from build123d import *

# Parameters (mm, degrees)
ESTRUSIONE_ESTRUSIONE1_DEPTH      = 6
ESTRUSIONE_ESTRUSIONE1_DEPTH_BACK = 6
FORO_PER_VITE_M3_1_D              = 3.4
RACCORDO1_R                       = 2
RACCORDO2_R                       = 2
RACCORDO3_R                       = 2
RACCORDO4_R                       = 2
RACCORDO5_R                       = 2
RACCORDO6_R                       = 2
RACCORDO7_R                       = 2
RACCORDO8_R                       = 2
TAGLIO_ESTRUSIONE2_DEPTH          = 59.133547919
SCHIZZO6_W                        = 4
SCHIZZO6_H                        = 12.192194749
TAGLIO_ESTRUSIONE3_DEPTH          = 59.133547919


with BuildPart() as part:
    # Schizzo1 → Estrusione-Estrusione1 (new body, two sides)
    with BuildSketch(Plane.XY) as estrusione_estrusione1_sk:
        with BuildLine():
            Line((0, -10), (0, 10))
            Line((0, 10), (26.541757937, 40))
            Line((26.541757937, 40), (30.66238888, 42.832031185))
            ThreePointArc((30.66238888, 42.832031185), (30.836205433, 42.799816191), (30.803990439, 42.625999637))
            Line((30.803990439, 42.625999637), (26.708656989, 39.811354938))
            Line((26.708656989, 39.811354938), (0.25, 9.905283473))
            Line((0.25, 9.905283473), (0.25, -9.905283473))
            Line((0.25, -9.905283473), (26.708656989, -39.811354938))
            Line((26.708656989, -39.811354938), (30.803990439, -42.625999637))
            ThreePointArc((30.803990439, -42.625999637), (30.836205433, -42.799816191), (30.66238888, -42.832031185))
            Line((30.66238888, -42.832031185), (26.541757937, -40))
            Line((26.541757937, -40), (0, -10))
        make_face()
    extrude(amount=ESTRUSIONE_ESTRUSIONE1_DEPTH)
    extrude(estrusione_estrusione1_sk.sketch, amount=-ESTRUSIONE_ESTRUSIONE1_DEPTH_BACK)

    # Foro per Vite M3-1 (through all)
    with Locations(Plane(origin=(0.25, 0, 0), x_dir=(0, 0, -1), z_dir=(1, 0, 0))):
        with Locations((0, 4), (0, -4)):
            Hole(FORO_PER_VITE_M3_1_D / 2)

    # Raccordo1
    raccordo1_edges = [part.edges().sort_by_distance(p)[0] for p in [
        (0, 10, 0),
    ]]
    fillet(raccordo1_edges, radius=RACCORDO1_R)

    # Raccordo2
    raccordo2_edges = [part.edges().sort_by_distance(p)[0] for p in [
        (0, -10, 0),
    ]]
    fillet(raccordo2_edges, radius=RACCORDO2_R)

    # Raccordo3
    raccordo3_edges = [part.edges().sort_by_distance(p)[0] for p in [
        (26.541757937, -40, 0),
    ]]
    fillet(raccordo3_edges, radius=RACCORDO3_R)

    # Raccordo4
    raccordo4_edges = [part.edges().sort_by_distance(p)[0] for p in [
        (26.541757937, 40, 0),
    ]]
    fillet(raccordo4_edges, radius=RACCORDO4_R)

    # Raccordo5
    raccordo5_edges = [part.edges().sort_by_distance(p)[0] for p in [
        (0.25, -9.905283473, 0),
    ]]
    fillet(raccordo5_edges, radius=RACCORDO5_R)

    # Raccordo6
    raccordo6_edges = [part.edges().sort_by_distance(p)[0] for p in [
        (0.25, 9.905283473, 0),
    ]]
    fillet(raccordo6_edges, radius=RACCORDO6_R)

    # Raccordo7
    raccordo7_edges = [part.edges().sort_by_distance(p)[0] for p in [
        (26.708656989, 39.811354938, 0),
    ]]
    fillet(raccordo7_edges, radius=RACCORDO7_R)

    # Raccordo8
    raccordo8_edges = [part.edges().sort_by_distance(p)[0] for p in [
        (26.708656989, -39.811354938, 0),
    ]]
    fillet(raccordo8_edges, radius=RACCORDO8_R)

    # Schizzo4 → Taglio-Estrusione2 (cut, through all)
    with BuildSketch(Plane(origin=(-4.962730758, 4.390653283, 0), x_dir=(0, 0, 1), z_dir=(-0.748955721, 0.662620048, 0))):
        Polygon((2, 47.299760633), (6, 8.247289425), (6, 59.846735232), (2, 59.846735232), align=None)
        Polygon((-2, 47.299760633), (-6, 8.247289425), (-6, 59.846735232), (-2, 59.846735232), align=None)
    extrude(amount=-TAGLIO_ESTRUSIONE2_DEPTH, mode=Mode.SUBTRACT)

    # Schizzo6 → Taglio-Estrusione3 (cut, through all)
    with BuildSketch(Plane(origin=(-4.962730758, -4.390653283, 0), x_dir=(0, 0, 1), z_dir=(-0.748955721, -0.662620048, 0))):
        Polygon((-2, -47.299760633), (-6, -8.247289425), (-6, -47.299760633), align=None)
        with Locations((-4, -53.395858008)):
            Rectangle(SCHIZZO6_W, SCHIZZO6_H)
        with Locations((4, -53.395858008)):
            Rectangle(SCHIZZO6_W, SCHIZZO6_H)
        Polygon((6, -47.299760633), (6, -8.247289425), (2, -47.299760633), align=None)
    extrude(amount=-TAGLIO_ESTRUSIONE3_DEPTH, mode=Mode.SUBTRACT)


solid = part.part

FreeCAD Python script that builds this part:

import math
import FreeCAD as App
import Part
import Sketcher
from FreeCAD import Vector
Q = App.Units.Quantity


def edges_at(feature, points):
    """Names of the edges that pass closest to the given points."""
    edges = feature.Shape.Edges
    near = lambda p: min(range(len(edges)), key=lambda i: edges[i].distToShape(Part.Vertex(*p))[0])
    return sorted({f"Edge{near(p) + 1}" for p in points})

doc = App.newDocument("Part")
params = doc.addObject("Spreadsheet::Sheet", "Params")
for row, (alias, value) in enumerate([
    ("sketch1_height", "20 mm"),
    ("sketch1_length", "5 mm"),
    ("pad1_length", "6 mm"),
    ("pad1_length2", "6 mm"),
    ("sketch2_diameter", "3.4 mm"),
    ("hole_diameter", "3.4 mm"),
    ("fillet_radius", "2 mm"),
    ("fillet2_radius", "2 mm"),
    ("fillet3_radius", "2 mm"),
    ("fillet4_radius", "2 mm"),
    ("fillet5_radius", "2 mm"),
    ("fillet6_radius", "2 mm"),
    ("fillet7_radius", "2 mm"),
    ("fillet8_radius", "2 mm"),
    ("sketch3_width", "4 mm"),
    ("sketch4_width", "4 mm"),
], start=1):
    params.set(f"A{row}", alias)
    params.set(f"B{row}", "=" + value)
    params.setAlias(f"B{row}", alias)

body = doc.addObject("PartDesign::Body", "Body")

sketch1 = body.newObject("Sketcher::SketchObject", "Sketch")
sketch1.AttachmentSupport = (doc.getObject("XY_Plane"), [""])
sketch1.MapMode = "FlatFace"
sketch1.addGeometry(Part.LineSegment(Vector(0, 10, 0), Vector(0, -10, 0)), False)
sketch1.addGeometry(Part.LineSegment(Vector(0, -10, 0), Vector(26.54, -40, 0)), False)
sketch1.addGeometry(Part.LineSegment(Vector(26.54, -40, 0), Vector(30.66, -42.83, 0)), False)
sketch1.addGeometry(Part.ArcOfCircle(Part.Circle(Vector(30.73, -42.73, 0), Vector(0, 0, 1), 0.12), math.radians(-124), math.radians(55)), False)
sketch1.addGeometry(Part.LineSegment(Vector(30.8, -42.63, 0), Vector(26.71, -39.81, 0)), False)
sketch1.addGeometry(Part.LineSegment(Vector(26.71, -39.81, 0), Vector(0.25, -9.91, 0)), False)
sketch1.addGeometry(Part.LineSegment(Vector(0.25, -9.91, 0), Vector(0.25, 9.91, 0)), False)
sketch1.addGeometry(Part.LineSegment(Vector(0.25, 9.91, 0), Vector(26.71, 39.81, 0)), False)
sketch1.addGeometry(Part.LineSegment(Vector(26.71, 39.81, 0), Vector(30.8, 42.63, 0)), False)
sketch1.addGeometry(Part.ArcOfCircle(Part.Circle(Vector(30.73, 42.73, 0), Vector(0, 0, 1), 0.12), math.radians(-55), math.radians(124)), False)
sketch1.addGeometry(Part.LineSegment(Vector(30.66, 42.83, 0), Vector(26.54, 40, 0)), False)
sketch1.addGeometry(Part.LineSegment(Vector(26.54, 40, 0), Vector(0, 10, 0)), False)
sketch1.addConstraint(Sketcher.Constraint("Coincident", 0, 2, 1, 1))
sketch1.addConstraint(Sketcher.Constraint("Coincident", 1, 2, 2, 1))
sketch1.addConstraint(Sketcher.Constraint("Tangent", 2, 2, 3, 1))
sketch1.addConstraint(Sketcher.Constraint("Tangent", 3, 2, 4, 1))
sketch1.addConstraint(Sketcher.Constraint("Coincident", 4, 2, 5, 1))
sketch1.addConstraint(Sketcher.Constraint("Coincident", 5, 2, 6, 1))
sketch1.addConstraint(Sketcher.Constraint("Coincident", 6, 2, 7, 1))
sketch1.addConstraint(Sketcher.Constraint("Coincident", 7, 2, 8, 1))
sketch1.addConstraint(Sketcher.Constraint("Tangent", 8, 2, 9, 1))
sketch1.addConstraint(Sketcher.Constraint("Tangent", 9, 2, 10, 1))
sketch1.addConstraint(Sketcher.Constraint("Coincident", 10, 2, 11, 1))
sketch1.addConstraint(Sketcher.Constraint("Coincident", 11, 2, 0, 1))
sketch1.addConstraint(Sketcher.Constraint("Vertical", 0))
sketch1.addConstraint(Sketcher.Constraint("Vertical", 6))
sketch1.addConstraint(Sketcher.Constraint("Equal", 3, 9))
sketch1.addConstraint(Sketcher.Constraint("Symmetric", 0, 2, 11, 2, -1, 1))
sketch1.addConstraint(Sketcher.Constraint("Symmetric", 3, 3, 9, 3, -1))
sketch1.addConstraint(Sketcher.Constraint("Symmetric", 4, 2, 7, 2, -1))
sketch1.addConstraint(Sketcher.Constraint("Symmetric", 1, 2, 10, 2, -1))
sketch1.addConstraint(Sketcher.Constraint("Parallel", 2, 4))
sketch1.addConstraint(Sketcher.Constraint("Parallel", 1, 5))
sketch1.addConstraint(Sketcher.Constraint("Parallel", 7, 11))
sketch1.addConstraint(Sketcher.Constraint("DistanceY", 0, 2, 0, 1, 20.0))
sketch1.addConstraint(Sketcher.Constraint("Distance", 2, 5.0))
sketch1.addConstraint(Sketcher.Constraint("DistanceY", 1, 2, -1, 1, 40.0))
sketch1.addConstraint(Sketcher.Constraint("Angle", 1, Q("-48.5 deg")))
sketch1.addConstraint(Sketcher.Constraint("Angle", 2, Q("-34.5 deg")))
sketch1.addConstraint(Sketcher.Constraint("Radius", 3, 0.125))
sketch1.addConstraint(Sketcher.Constraint("DistanceX", -1, 1, 5, 2, 0.25))
sketch1.addConstraint(Sketcher.Constraint("DistanceX", 1, 2, 4, 2, 0.166899))
sketch1.setExpression("Constraints[22]", "Params.sketch1_height")
sketch1.setExpression("Constraints[23]", "Params.sketch1_length")
pad1 = body.newObject("PartDesign::Pad", "Pad")
pad1.Profile = sketch1
pad1.Type = "TwoLengths"
pad1.setExpression("Length", "Params.pad1_length")
pad1.setExpression("Length2", "Params.pad1_length2")

sketch2 = body.newObject("Sketcher::SketchObject", "Sketch001")
sketch2.AttachmentSupport = (doc.getObject("YZ_Plane"), [""])
sketch2.MapMode = "FlatFace"
sketch2.AttachmentOffset = App.Placement(Vector(0, 0, 0.25), App.Rotation())
sketch2.addGeometry(Part.Circle(Vector(4, 0, 0), Vector(0, 0, 1), 1.7), False)
sketch2.addGeometry(Part.Circle(Vector(-4, 0, 0), Vector(0, 0, 1), 1.7), False)
sketch2.addConstraint(Sketcher.Constraint("Equal", 0, 1))
sketch2.addConstraint(Sketcher.Constraint("Symmetric", 0, 3, 1, 3, -1, 1))
sketch2.addConstraint(Sketcher.Constraint("PointOnObject", 0, 3, -1))
sketch2.addConstraint(Sketcher.Constraint("Diameter", 0, 3.4))
sketch2.addConstraint(Sketcher.Constraint("DistanceX", -1, 1, 0, 3, 4.0))
sketch2.setExpression("Constraints[3]", "Params.sketch2_diameter")
doc.recompute()
hole = body.newObject("PartDesign::Hole", "Hole")
hole.Profile = sketch2
hole.ThreadType = "None"
hole.setExpression("Diameter", "Params.hole_diameter")
hole.DepthType = "ThroughAll"
doc.recompute()

fillet = body.newObject("PartDesign::Fillet", "Fillet")
fillet.Base = (hole, edges_at(hole, [(0, 10, 0)]))
fillet.setExpression("Radius", "Params.fillet_radius")
doc.recompute()

fillet2 = body.newObject("PartDesign::Fillet", "Fillet001")
fillet2.Base = (fillet, edges_at(fillet, [(0, -10, 0)]))
fillet2.setExpression("Radius", "Params.fillet2_radius")
doc.recompute()

fillet3 = body.newObject("PartDesign::Fillet", "Fillet002")
fillet3.Base = (fillet2, edges_at(fillet2, [(26.542, -40, 0)]))
fillet3.setExpression("Radius", "Params.fillet3_radius")
doc.recompute()

fillet4 = body.newObject("PartDesign::Fillet", "Fillet003")
fillet4.Base = (fillet3, edges_at(fillet3, [(26.542, 40, 0)]))
fillet4.setExpression("Radius", "Params.fillet4_radius")
doc.recompute()

fillet5 = body.newObject("PartDesign::Fillet", "Fillet004")
fillet5.Base = (fillet4, edges_at(fillet4, [(0.25, -9.905, 0)]))
fillet5.setExpression("Radius", "Params.fillet5_radius")
doc.recompute()

fillet6 = body.newObject("PartDesign::Fillet", "Fillet005")
fillet6.Base = (fillet5, edges_at(fillet5, [(0.25, 9.905, 0)]))
fillet6.setExpression("Radius", "Params.fillet6_radius")
doc.recompute()

fillet7 = body.newObject("PartDesign::Fillet", "Fillet006")
fillet7.Base = (fillet6, edges_at(fillet6, [(26.709, 39.811, 0)]))
fillet7.setExpression("Radius", "Params.fillet7_radius")
doc.recompute()

fillet8 = body.newObject("PartDesign::Fillet", "Fillet007")
fillet8.Base = (fillet7, edges_at(fillet7, [(26.709, -39.811, 0)]))
fillet8.setExpression("Radius", "Params.fillet8_radius")

sketch3 = body.newObject("Sketcher::SketchObject", "Sketch002")
sketch3.Placement = App.Placement(Vector(-4.962731, 4.390653, 0), App.Rotation(Vector(0, 0, 1), Vector(0.662620048, 0.748955721, 0), Vector(-0.748955721, 0.662620048, 0), "ZXY"))
sketch3.addGeometry(Part.LineSegment(Vector(2, 47.3, 0), Vector(6, 8.2, 0)), False)
sketch3.addGeometry(Part.LineSegment(Vector(6, 8.2, 0), Vector(6, 59.8, 0)), False)
sketch3.addGeometry(Part.LineSegment(Vector(6, 59.8, 0), Vector(2, 59.8, 0)), False)
sketch3.addGeometry(Part.LineSegment(Vector(2, 59.8, 0), Vector(2, 47.3, 0)), False)
sketch3.addGeometry(Part.LineSegment(Vector(-6, 8.2, 0), Vector(-2, 47.3, 0)), False)
sketch3.addGeometry(Part.LineSegment(Vector(-2, 47.3, 0), Vector(-2, 59.8, 0)), False)
sketch3.addGeometry(Part.LineSegment(Vector(-2, 59.8, 0), Vector(-6, 59.8, 0)), False)
sketch3.addGeometry(Part.LineSegment(Vector(-6, 59.8, 0), Vector(-6, 8.2, 0)), False)
sketch3.addConstraint(Sketcher.Constraint("Coincident", 0, 2, 1, 1))
sketch3.addConstraint(Sketcher.Constraint("Coincident", 1, 2, 2, 1))
sketch3.addConstraint(Sketcher.Constraint("Coincident", 2, 2, 3, 1))
sketch3.addConstraint(Sketcher.Constraint("Coincident", 3, 2, 0, 1))
sketch3.addConstraint(Sketcher.Constraint("Coincident", 4, 2, 5, 1))
sketch3.addConstraint(Sketcher.Constraint("Coincident", 5, 2, 6, 1))
sketch3.addConstraint(Sketcher.Constraint("Coincident", 6, 2, 7, 1))
sketch3.addConstraint(Sketcher.Constraint("Coincident", 7, 2, 4, 1))
sketch3.addConstraint(Sketcher.Constraint("Vertical", 1))
sketch3.addConstraint(Sketcher.Constraint("Horizontal", 2))
sketch3.addConstraint(Sketcher.Constraint("Vertical", 3))
sketch3.addConstraint(Sketcher.Constraint("Vertical", 5))
sketch3.addConstraint(Sketcher.Constraint("Horizontal", 6))
sketch3.addConstraint(Sketcher.Constraint("Vertical", 7))
sketch3.addConstraint(Sketcher.Constraint("Symmetric", 3, 2, 4, 2, -2))
sketch3.addConstraint(Sketcher.Constraint("Symmetric", 1, 2, 6, 2, -2))
sketch3.addConstraint(Sketcher.Constraint("Horizontal", 0, 2, 7, 2))
sketch3.addConstraint(Sketcher.Constraint("DistanceX", 2, 2, 2, 1, 4.0))
sketch3.addConstraint(Sketcher.Constraint("DistanceX", -1, 1, 0, 2, 6.0))
sketch3.addConstraint(Sketcher.Constraint("Distance", 0, 39.256789))
sketch3.addConstraint(Sketcher.Constraint("DistanceY", 1, 1, 1, 2, 51.599446))
sketch3.addConstraint(Sketcher.Constraint("DistanceY", -1, 1, 0, 2, 8.247289))
sketch3.setExpression("Constraints[17]", "Params.sketch3_width")
pocket1 = body.newObject("PartDesign::Pocket", "Pocket")
pocket1.Profile = sketch3
pocket1.Type = "ThroughAll"

sketch4 = body.newObject("Sketcher::SketchObject", "Sketch003")
sketch4.Placement = App.Placement(Vector(-4.962731, -4.390653, 0), App.Rotation(Vector(0, 0, 1), Vector(-0.662620048, 0.748955721, 0), Vector(-0.748955721, -0.662620048, 0), "ZXY"))
sketch4.addGeometry(Part.LineSegment(Vector(-2, -47.3, 0), Vector(-6, -8.2, 0)), False)
sketch4.addGeometry(Part.LineSegment(Vector(-6, -8.2, 0), Vector(-6, -59.5, 0)), False)
sketch4.addGeometry(Part.LineSegment(Vector(-6, -59.5, 0), Vector(-2, -59.5, 0)), False)
sketch4.addGeometry(Part.LineSegment(Vector(-2, -59.5, 0), Vector(-2, -47.3, 0)), False)
sketch4.addGeometry(Part.LineSegment(Vector(2, -47.3, 0), Vector(2, -59.5, 0)), False)
sketch4.addGeometry(Part.LineSegment(Vector(2, -59.5, 0), Vector(6, -59.5, 0)), False)
sketch4.addGeometry(Part.LineSegment(Vector(6, -59.5, 0), Vector(6, -8.2, 0)), False)
sketch4.addGeometry(Part.LineSegment(Vector(6, -8.2, 0), Vector(2, -47.3, 0)), False)
sketch4.addConstraint(Sketcher.Constraint("Coincident", 0, 2, 1, 1))
sketch4.addConstraint(Sketcher.Constraint("Coincident", 1, 2, 2, 1))
sketch4.addConstraint(Sketcher.Constraint("Coincident", 2, 2, 3, 1))
sketch4.addConstraint(Sketcher.Constraint("Coincident", 3, 2, 0, 1))
sketch4.addConstraint(Sketcher.Constraint("Coincident", 4, 2, 5, 1))
sketch4.addConstraint(Sketcher.Constraint("Coincident", 5, 2, 6, 1))
sketch4.addConstraint(Sketcher.Constraint("Coincident", 6, 2, 7, 1))
sketch4.addConstraint(Sketcher.Constraint("Coincident", 7, 2, 4, 1))
sketch4.addConstraint(Sketcher.Constraint("Vertical", 1))
sketch4.addConstraint(Sketcher.Constraint("Horizontal", 2))
sketch4.addConstraint(Sketcher.Constraint("Vertical", 3))
sketch4.addConstraint(Sketcher.Constraint("Vertical", 4))
sketch4.addConstraint(Sketcher.Constraint("Horizontal", 5))
sketch4.addConstraint(Sketcher.Constraint("Vertical", 6))
sketch4.addConstraint(Sketcher.Constraint("Symmetric", 2, 2, 4, 2, -2))
sketch4.addConstraint(Sketcher.Constraint("Symmetric", 0, 2, 6, 2, -2))
sketch4.addConstraint(Sketcher.Constraint("Horizontal", 3, 2, 7, 2))
sketch4.addConstraint(Sketcher.Constraint("DistanceX", 2, 1, 2, 2, 4.0))
sketch4.addConstraint(Sketcher.Constraint("DistanceX", 0, 2, -1, 1, 6.0))
sketch4.addConstraint(Sketcher.Constraint("Distance", 0, 39.256789))
sketch4.addConstraint(Sketcher.Constraint("DistanceY", 1, 2, 1, 1, 51.244666))
sketch4.addConstraint(Sketcher.Constraint("DistanceY", 0, 2, -1, 1, 8.247289))
sketch4.setExpression("Constraints[17]", "Params.sketch4_width")
pocket2 = body.newObject("PartDesign::Pocket", "Pocket001")
pocket2.Profile = sketch4
pocket2.Type = "ThroughAll"

doc.recompute()
